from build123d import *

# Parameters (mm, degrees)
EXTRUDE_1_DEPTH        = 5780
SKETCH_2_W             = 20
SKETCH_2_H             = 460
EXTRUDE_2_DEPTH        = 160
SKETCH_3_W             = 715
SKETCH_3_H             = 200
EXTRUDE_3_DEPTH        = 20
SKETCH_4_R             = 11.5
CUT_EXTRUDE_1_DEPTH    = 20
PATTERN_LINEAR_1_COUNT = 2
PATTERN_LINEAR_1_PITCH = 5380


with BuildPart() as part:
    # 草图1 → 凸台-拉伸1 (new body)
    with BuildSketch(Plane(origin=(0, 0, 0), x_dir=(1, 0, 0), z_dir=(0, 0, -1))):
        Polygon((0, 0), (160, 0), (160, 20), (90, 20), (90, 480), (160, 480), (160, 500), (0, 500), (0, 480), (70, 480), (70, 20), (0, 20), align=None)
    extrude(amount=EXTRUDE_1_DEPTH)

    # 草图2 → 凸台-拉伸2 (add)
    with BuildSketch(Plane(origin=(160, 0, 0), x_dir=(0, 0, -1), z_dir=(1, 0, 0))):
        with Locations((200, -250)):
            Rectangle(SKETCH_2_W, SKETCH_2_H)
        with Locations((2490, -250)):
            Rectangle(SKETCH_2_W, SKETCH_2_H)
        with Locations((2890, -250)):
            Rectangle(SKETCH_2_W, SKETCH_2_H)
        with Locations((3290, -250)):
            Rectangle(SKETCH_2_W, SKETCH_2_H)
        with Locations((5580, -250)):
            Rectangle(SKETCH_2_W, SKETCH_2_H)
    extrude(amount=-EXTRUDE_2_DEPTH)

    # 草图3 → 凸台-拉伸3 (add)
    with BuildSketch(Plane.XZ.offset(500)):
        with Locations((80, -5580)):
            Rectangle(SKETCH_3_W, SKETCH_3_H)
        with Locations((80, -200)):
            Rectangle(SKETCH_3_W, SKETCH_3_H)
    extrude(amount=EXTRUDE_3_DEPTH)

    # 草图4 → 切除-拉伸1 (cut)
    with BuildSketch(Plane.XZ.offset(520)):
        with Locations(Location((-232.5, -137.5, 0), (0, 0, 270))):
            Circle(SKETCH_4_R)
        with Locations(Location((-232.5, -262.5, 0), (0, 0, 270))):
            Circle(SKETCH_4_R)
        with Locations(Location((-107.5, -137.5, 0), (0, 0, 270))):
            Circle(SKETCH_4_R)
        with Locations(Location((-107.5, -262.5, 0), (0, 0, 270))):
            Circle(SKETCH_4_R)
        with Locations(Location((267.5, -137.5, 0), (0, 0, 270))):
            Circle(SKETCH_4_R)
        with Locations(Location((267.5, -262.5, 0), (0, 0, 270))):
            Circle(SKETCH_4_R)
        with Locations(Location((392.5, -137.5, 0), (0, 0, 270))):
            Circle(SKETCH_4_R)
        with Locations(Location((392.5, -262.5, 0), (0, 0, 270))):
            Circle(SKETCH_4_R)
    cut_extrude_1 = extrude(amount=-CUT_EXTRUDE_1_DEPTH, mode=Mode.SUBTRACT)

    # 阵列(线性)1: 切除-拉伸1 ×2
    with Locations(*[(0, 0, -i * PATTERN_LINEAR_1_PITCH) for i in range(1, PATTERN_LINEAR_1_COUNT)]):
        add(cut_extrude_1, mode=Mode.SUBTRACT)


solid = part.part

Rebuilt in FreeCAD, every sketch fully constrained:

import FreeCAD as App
import Part
import Sketcher

V = App.Vector
Q = App.Units.Quantity


def add_polygon(sketch, points):
    """Adds a closed chain of lines whose ends are joined by coincident constraints."""
    first, n = sketch.GeometryCount, len(points)
    for a, b in zip(points, points[1:] + points[:1]):
        sketch.addGeometry(Part.LineSegment(App.Vector(*a, 0), App.Vector(*b, 0)), False)
    for i in range(n):
        sketch.addConstraint(Sketcher.Constraint("Coincident", first + i, 2, first + (i + 1) % n, 1))

doc = App.newDocument("Part")
body = doc.addObject("PartDesign::Body", "Body")

# Sketch on XY plane
sketch1 = body.newObject("Sketcher::SketchObject", "Sketch")
sketch1.AttachmentSupport = (doc.getObject("XY_Plane"), [""])
sketch1.MapMode = "FlatFace"
add_polygon(sketch1, [(0, 0), (160, 0), (160, -20), (90, -20), (90, -480), (160, -480), (160, -500), (0, -500), (0, -480), (70, -480), (70, -20), (0, -20)])  # lines 0-11
sketch1.addConstraint(Sketcher.Constraint("Horizontal", 0))
sketch1.addConstraint(Sketcher.Constraint("Vertical", 1))
sketch1.addConstraint(Sketcher.Constraint("Horizontal", 2))
sketch1.addConstraint(Sketcher.Constraint("Vertical", 3))
sketch1.addConstraint(Sketcher.Constraint("Horizontal", 4))
sketch1.addConstraint(Sketcher.Constraint("Vertical", 5))
sketch1.addConstraint(Sketcher.Constraint("Horizontal", 6))
sketch1.addConstraint(Sketcher.Constraint("Vertical", 7))
sketch1.addConstraint(Sketcher.Constraint("Horizontal", 8))
sketch1.addConstraint(Sketcher.Constraint("Vertical", 9))
sketch1.addConstraint(Sketcher.Constraint("Horizontal", 10))
sketch1.addConstraint(Sketcher.Constraint("Vertical", 11))
sketch1.addConstraint(Sketcher.Constraint("Coincident", 11, 2, -1, 1))
sketch1.addConstraint(Sketcher.Constraint("PointOnObject", 6, 2, -2))
sketch1.addConstraint(Sketcher.Constraint("Horizontal", 4, 2, 7, 2))
sketch1.addConstraint(Sketcher.Constraint("Horizontal", 2, 2, 9, 2))
sketch1.addConstraint(Sketcher.Constraint("Vertical", 1, 2, 4, 2))
sketch1.addConstraint(Sketcher.Constraint("Equal", 4, 8))
sketch1.addConstraint(Sketcher.Constraint("Equal", 1, 5))
sketch1.addConstraint(Sketcher.Constraint("DistanceX", 0, 1, 0, 2, Q("160 mm")))
sketch1.addConstraint(Sketcher.Constraint("DistanceX", 2, 2, 2, 1, Q("70 mm")))
sketch1.addConstraint(Sketcher.Constraint("DistanceY", 1, 2, 1, 1, Q("20 mm")))
sketch1.addConstraint(Sketcher.Constraint("DistanceY", 3, 2, 3, 1, Q("460 mm")))
pad1 = body.newObject("PartDesign::Pad", "Pad")
pad1.Profile = sketch1
pad1.Length = 5780
pad1.Reversed = True

# Sketch on YZ plane
sketch2 = body.newObject("Sketcher::SketchObject", "Sketch001")
sketch2.AttachmentSupport = (doc.getObject("YZ_Plane"), [""])
sketch2.MapMode = "FlatFace"
sketch2.AttachmentOffset = App.Placement(V(0, 0, 160), App.Rotation())
add_polygon(sketch2, [(-20, -190), (-480, -190), (-480, -210), (-20, -210)])  # lines 0-3
add_polygon(sketch2, [(-20, -2480), (-480, -2480), (-480, -2500), (-20, -2500)])  # lines 4-7
add_polygon(sketch2, [(-20, -2880), (-480, -2880), (-480, -2900), (-20, -2900)])  # lines 8-11
add_polygon(sketch2, [(-20, -3280), (-480, -3280), (-480, -3300), (-20, -3300)])  # lines 12-15
add_polygon(sketch2, [(-20, -5570), (-480, -5570), (-480, -5590), (-20, -5590)])  # lines 16-19
sketch2.addConstraint(Sketcher.Constraint("Horizontal", 0))
sketch2.addConstraint(Sketcher.Constraint("Vertical", 1))
sketch2.addConstraint(Sketcher.Constraint("Horizontal", 2))
sketch2.addConstraint(Sketcher.Constraint("Vertical", 3))
sketch2.addConstraint(Sketcher.Constraint("Horizontal", 4))
sketch2.addConstraint(Sketcher.Constraint("Vertical", 5))
sketch2.addConstraint(Sketcher.Constraint("Horizontal", 6))
sketch2.addConstraint(Sketcher.Constraint("Vertical", 7))
sketch2.addConstraint(Sketcher.Constraint("Horizontal", 8))
sketch2.addConstraint(Sketcher.Constraint("Vertical", 9))
sketch2.addConstraint(Sketcher.Constraint("Horizontal", 10))
sketch2.addConstraint(Sketcher.Constraint("Vertical", 11))
sketch2.addConstraint(Sketcher.Constraint("Horizontal", 12))
sketch2.addConstraint(Sketcher.Constraint("Vertical", 13))
sketch2.addConstraint(Sketcher.Constraint("Horizontal", 14))
sketch2.addConstraint(Sketcher.Constraint("Vertical", 15))
sketch2.addConstraint(Sketcher.Constraint("Horizontal", 16))
sketch2.addConstraint(Sketcher.Constraint("Vertical", 17))
sketch2.addConstraint(Sketcher.Constraint("Horizontal", 18))
sketch2.addConstraint(Sketcher.Constraint("Vertical", 19))
sketch2.addConstraint(Sketcher.Constraint("Vertical", 1, 2, 4, 2))
sketch2.addConstraint(Sketcher.Constraint("Vertical", 3, 2, 6, 2))
sketch2.addConstraint(Sketcher.Constraint("Vertical", 5, 2, 8, 2))
sketch2.addConstraint(Sketcher.Constraint("Vertical", 7, 2, 10, 2))
sketch2.addConstraint(Sketcher.Constraint("Vertical", 9, 2, 12, 2))
sketch2.addConstraint(Sketcher.Constraint("Vertical", 11, 2, 14, 2))
sketch2.addConstraint(Sketcher.Constraint("Vertical", 13, 2, 16, 2))
sketch2.addConstraint(Sketcher.Constraint("Vertical", 15, 2, 18, 2))
sketch2.addConstraint(Sketcher.Constraint("Equal", 3, 5))
sketch2.addConstraint(Sketcher.Constraint("Equal", 7, 9))
sketch2.addConstraint(Sketcher.Constraint("Equal", 11, 13))
sketch2.addConstraint(Sketcher.Constraint("Equal", 15, 17))
sketch2.addConstraint(Sketcher.Constraint("DistanceX", 0, 2, 0, 1, Q("460 mm")))
sketch2.addConstraint(Sketcher.Constraint("DistanceY", 1, 2, 1, 1, Q("20 mm")))
sketch2.addConstraint(Sketcher.Constraint("DistanceX", 0, 2, -1, 1, Q("480 mm")))
sketch2.addConstraint(Sketcher.Constraint("DistanceY", 0, 2, -1, 1, Q("190 mm")))
sketch2.addConstraint(Sketcher.Constraint("DistanceY", 4, 2, -1, 1, Q("2480 mm")))
sketch2.addConstraint(Sketcher.Constraint("DistanceY", 8, 2, -1, 1, Q("2880 mm")))
sketch2.addConstraint(Sketcher.Constraint("DistanceY", 12, 2, -1, 1, Q("3280 mm")))
sketch2.addConstraint(Sketcher.Constraint("DistanceY", 16, 2, -1, 1, Q("5570 mm")))
pad2 = body.newObject("PartDesign::Pad", "Pad001")
pad2.Profile = sketch2
pad2.Length = 160
pad2.Reversed = True

# Sketch on XZ plane
sketch3 = body.newObject("Sketcher::SketchObject", "Sketch002")
sketch3.AttachmentSupport = (doc.getObject("XZ_Plane"), [""])
sketch3.MapMode = "FlatFace"
sketch3.AttachmentOffset = App.Placement(V(0, 0, 500), App.Rotation())
add_polygon(sketch3, [(-278, -5480), (-278, -5680), (438, -5680), (438, -5480)])  # lines 0-3
add_polygon(sketch3, [(-278, -100), (-278, -300), (438, -300), (438, -100)])  # lines 4-7
sketch3.addConstraint(Sketcher.Constraint("Vertical", 0))
sketch3.addConstraint(Sketcher.Constraint("Horizontal", 1))
sketch3.addConstraint(Sketcher.Constraint("Vertical", 2))
sketch3.addConstraint(Sketcher.Constraint("Horizontal", 3))
sketch3.addConstraint(Sketcher.Constraint("Vertical", 4))
sketch3.addConstraint(Sketcher.Constraint("Horizontal", 5))
sketch3.addConstraint(Sketcher.Constraint("Vertical", 6))
sketch3.addConstraint(Sketcher.Constraint("Horizontal", 7))
sketch3.addConstraint(Sketcher.Constraint("Vertical", 3, 2, 4, 2))
sketch3.addConstraint(Sketcher.Constraint("Vertical", 2, 2, 5, 2))
sketch3.addConstraint(Sketcher.Constraint("Equal", 2, 4))
sketch3.addConstraint(Sketcher.Constraint("DistanceX", 1, 1, 1, 2, Q("715 mm")))
sketch3.addConstraint(Sketcher.Constraint("DistanceY", 0, 2, 0, 1, Q("200 mm")))
sketch3.addConstraint(Sketcher.Constraint("DistanceY", 0, 2, -1, 1, Q("5680 mm")))
sketch3.addConstraint(Sketcher.Constraint("DistanceY", 4, 2, -1, 1, Q("300 mm")))
sketch3.addConstraint(Sketcher.Constraint("DistanceX", 0, 2, -1, 1, Q("277.5 mm")))
pad3 = body.newObject("PartDesign::Pad", "Pad002")
pad3.Profile = sketch3
pad3.Length = 20

# Sketch on XZ plane
sketch4 = body.newObject("Sketcher::SketchObject", "Sketch003")
sketch4.AttachmentSupport = (doc.getObject("XZ_Plane"), [""])
sketch4.MapMode = "FlatFace"
sketch4.AttachmentOffset = App.Placement(V(0, 0, 520), App.Rotation())
sketch4.addGeometry(Part.Circle(V(-232, -138, 0), V(0, 0, 1), 12), False)
sketch4.addGeometry(Part.Circle(V(-232, -262, 0), V(0, 0, 1), 12), False)
sketch4.addGeometry(Part.Circle(V(-108, -138, 0), V(0, 0, 1), 12), False)
sketch4.addGeometry(Part.Circle(V(-108, -262, 0), V(0, 0, 1), 12), False)
sketch4.addGeometry(Part.Circle(V(268, -138, 0), V(0, 0, 1), 12), False)
sketch4.addGeometry(Part.Circle(V(268, -262, 0), V(0, 0, 1), 12), False)
sketch4.addGeometry(Part.Circle(V(392, -138, 0), V(0, 0, 1), 12), False)
sketch4.addGeometry(Part.Circle(V(392, -262, 0), V(0, 0, 1), 12), False)
sketch4.addConstraint(Sketcher.Constraint("Equal", 0, 1))
sketch4.addConstraint(Sketcher.Constraint("Equal", 1, 2))
sketch4.addConstraint(Sketcher.Constraint("Equal", 2, 3))
sketch4.addConstraint(Sketcher.Constraint("Equal", 3, 4))
sketch4.addConstraint(Sketcher.Constraint("Equal", 4, 5))
sketch4.addConstraint(Sketcher.Constraint("Equal", 5, 6))
sketch4.addConstraint(Sketcher.Constraint("Equal", 6, 7))
sketch4.addConstraint(Sketcher.Constraint("Horizontal", 0, 3, 2, 3))
sketch4.addConstraint(Sketcher.Constraint("Horizontal", 1, 3, 3, 3))
sketch4.addConstraint(Sketcher.Constraint("Horizontal", 2, 3, 4, 3))
sketch4.addConstraint(Sketcher.Constraint("Horizontal", 3, 3, 5, 3))
sketch4.addConstraint(Sketcher.Constraint("Horizontal", 4, 3, 6, 3))
sketch4.addConstraint(Sketcher.Constraint("Horizontal", 5, 3, 7, 3))
sketch4.addConstraint(Sketcher.Constraint("Vertical", 0, 3, 1, 3))
sketch4.addConstraint(Sketcher.Constraint("Vertical", 2, 3, 3, 3))
sketch4.addConstraint(Sketcher.Constraint("Vertical", 4, 3, 5, 3))
sketch4.addConstraint(Sketcher.Constraint("Vertical", 6, 3, 7, 3))
sketch4.addConstraint(Sketcher.Constraint("Diameter", 0, Q("23 mm")))
sketch4.addConstraint(Sketcher.Constraint("DistanceY", 1, 3, 0, 3, Q("125 mm")))
sketch4.addConstraint(Sketcher.Constraint("DistanceX", 0, 3, 2, 3, Q("125 mm")))
sketch4.addConstraint(Sketcher.Constraint("DistanceX", 2, 3, 4, 3, Q("375 mm")))
sketch4.addConstraint(Sketcher.Constraint("DistanceX", 4, 3, 6, 3, Q("125 mm")))
sketch4.addConstraint(Sketcher.Constraint("DistanceX", 0, 3, -1, 1, Q("232.5 mm")))
sketch4.addConstraint(Sketcher.Constraint("DistanceY", 0, 3, -1, 1, Q("137.5 mm")))
pocket1 = body.newObject("PartDesign::Pocket", "Pocket")
pocket1.Profile = sketch4
pocket1.Length = 20
doc.recompute()

linearpattern = body.newObject("PartDesign::LinearPattern", "LinearPattern")
linearpattern.Originals = [pocket1]
linearpattern.Direction = (doc.getObject("Z_Axis"), [""])
linearpattern.Mode = "offset"
linearpattern.Offset = 5380
linearpattern.Occurrences = 2
linearpattern.Reversed = True
body.Tip = linearpattern

doc.recompute()
